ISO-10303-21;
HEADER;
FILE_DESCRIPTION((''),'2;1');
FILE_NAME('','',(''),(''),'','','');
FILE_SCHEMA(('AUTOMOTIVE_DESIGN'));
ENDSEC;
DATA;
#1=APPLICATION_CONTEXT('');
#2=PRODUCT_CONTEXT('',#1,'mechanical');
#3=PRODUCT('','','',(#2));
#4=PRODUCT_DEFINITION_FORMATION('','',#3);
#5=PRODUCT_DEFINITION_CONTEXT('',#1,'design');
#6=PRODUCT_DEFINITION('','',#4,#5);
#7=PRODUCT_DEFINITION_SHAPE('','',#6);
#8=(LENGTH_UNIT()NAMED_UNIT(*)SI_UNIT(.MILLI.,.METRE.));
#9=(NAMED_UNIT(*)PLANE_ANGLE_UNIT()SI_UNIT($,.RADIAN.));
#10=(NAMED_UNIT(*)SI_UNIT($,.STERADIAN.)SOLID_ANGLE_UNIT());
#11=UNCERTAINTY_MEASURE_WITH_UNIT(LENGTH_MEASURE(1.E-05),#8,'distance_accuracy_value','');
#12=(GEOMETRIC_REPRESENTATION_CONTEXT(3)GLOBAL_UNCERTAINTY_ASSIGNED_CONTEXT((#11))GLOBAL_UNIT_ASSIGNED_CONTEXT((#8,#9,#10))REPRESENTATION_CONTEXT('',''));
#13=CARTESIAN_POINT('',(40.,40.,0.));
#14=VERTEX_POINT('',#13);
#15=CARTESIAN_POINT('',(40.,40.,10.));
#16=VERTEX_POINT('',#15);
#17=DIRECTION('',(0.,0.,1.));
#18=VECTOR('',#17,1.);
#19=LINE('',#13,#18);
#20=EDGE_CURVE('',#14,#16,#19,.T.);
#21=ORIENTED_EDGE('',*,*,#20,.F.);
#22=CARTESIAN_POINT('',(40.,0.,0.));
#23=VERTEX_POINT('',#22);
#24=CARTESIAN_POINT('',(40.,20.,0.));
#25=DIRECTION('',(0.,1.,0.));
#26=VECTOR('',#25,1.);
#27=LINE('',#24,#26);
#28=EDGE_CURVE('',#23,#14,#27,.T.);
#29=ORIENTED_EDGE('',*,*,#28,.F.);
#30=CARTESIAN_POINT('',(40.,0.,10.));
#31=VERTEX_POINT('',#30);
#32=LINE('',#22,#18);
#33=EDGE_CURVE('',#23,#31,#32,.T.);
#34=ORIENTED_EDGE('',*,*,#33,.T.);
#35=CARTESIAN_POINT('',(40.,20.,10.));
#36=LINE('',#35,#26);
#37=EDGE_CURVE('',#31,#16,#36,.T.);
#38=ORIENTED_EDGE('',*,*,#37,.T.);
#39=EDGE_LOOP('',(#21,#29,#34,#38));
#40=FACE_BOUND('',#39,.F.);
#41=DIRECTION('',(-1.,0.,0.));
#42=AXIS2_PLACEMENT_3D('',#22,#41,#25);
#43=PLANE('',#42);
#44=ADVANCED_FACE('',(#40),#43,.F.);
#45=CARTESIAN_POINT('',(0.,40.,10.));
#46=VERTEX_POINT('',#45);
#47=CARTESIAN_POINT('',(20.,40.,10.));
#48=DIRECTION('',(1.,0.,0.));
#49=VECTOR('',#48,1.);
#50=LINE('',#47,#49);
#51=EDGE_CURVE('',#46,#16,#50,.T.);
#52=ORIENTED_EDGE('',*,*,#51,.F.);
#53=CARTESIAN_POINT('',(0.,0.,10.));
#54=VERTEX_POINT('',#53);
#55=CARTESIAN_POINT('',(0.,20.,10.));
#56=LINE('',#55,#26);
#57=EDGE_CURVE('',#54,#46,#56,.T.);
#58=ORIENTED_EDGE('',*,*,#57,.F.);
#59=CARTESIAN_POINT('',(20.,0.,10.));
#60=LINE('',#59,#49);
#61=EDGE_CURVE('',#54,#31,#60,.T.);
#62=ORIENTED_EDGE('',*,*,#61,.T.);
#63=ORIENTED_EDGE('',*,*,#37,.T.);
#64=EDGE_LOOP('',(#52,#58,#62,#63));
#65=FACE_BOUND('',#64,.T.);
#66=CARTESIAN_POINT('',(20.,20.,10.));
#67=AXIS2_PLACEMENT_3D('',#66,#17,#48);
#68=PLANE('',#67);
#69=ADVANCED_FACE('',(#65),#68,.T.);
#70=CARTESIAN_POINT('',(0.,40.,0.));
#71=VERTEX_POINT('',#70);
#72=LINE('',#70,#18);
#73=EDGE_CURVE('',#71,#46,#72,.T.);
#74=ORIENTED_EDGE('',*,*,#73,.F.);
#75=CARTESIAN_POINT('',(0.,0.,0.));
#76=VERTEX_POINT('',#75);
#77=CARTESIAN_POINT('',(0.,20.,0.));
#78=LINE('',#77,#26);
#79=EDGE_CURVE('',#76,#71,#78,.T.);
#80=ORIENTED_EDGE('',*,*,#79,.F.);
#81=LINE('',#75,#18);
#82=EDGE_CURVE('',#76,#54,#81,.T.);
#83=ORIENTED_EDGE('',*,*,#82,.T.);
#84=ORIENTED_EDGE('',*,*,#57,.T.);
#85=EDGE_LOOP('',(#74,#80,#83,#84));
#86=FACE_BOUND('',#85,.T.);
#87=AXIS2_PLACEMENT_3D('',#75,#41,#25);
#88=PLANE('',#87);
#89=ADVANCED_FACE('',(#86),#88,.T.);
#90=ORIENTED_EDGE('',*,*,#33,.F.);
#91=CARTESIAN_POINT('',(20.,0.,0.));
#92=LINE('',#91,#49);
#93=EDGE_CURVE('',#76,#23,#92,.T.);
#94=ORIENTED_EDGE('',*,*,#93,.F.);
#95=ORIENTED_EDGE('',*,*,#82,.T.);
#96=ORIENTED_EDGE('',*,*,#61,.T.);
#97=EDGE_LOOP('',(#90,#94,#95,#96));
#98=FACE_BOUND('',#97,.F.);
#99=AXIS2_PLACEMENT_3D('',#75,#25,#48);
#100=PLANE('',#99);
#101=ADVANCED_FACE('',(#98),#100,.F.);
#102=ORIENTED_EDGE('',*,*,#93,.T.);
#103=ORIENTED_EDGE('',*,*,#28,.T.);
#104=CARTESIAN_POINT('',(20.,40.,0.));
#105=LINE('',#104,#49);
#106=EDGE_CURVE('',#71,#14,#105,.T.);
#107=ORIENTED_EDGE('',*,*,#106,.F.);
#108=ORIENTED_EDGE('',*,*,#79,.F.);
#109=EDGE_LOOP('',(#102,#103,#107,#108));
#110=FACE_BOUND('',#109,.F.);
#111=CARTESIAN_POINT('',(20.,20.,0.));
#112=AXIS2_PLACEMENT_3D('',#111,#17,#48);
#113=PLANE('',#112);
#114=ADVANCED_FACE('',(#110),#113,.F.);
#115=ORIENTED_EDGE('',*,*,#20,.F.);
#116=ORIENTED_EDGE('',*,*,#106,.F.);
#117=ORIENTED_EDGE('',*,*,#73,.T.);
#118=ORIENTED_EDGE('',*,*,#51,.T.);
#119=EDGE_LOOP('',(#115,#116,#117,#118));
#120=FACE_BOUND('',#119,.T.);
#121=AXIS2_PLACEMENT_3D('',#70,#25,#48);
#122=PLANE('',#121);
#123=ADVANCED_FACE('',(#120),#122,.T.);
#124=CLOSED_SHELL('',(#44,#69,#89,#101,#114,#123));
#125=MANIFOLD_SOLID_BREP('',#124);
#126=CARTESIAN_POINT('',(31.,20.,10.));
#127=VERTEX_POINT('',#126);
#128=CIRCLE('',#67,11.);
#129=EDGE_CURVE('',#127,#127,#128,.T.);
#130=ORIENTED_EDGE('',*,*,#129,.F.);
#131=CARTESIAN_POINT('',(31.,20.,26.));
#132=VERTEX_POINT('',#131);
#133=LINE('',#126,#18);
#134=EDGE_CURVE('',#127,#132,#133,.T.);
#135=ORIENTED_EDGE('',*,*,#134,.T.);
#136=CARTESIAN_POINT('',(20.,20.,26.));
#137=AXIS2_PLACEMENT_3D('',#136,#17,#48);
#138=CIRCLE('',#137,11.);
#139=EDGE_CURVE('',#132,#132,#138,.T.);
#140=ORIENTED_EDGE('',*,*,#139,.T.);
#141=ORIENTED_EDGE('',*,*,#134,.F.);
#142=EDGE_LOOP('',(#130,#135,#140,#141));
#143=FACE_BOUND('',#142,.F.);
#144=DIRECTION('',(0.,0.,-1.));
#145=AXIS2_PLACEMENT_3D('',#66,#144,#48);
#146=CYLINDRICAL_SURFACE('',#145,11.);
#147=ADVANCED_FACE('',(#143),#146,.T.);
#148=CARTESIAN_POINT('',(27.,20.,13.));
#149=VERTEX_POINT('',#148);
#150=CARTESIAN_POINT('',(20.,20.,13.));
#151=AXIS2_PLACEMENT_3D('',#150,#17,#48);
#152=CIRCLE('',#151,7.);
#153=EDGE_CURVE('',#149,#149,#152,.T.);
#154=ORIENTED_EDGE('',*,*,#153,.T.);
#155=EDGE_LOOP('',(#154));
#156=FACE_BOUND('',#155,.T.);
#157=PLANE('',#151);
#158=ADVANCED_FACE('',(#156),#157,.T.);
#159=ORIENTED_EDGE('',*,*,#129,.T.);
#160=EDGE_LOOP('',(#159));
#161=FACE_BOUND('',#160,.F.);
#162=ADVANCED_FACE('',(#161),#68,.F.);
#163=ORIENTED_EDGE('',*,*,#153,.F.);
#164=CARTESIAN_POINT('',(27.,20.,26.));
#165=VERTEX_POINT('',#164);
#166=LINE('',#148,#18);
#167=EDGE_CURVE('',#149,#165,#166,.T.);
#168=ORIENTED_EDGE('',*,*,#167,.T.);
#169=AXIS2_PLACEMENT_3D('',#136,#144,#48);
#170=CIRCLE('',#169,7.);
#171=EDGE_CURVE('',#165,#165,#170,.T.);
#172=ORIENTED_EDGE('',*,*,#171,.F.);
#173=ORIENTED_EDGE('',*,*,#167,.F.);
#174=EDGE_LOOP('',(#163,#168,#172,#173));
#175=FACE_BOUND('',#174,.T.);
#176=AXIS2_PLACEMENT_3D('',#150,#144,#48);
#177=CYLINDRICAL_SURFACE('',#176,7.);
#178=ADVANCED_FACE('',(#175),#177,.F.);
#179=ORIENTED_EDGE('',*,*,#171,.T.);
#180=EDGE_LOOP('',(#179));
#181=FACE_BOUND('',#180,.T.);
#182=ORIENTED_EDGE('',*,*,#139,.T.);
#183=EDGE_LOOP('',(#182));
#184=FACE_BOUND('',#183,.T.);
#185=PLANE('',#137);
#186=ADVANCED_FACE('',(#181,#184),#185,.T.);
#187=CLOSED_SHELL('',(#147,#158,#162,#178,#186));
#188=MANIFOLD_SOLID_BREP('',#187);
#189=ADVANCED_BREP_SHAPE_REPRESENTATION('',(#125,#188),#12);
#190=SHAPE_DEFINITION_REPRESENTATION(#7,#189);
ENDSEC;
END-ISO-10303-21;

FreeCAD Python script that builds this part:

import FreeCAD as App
import Part
import Sketcher
Q = App.Units.Quantity


def add_polygon(sketch, points):
    """Adds a closed chain of lines whose ends are joined by coincident constraints."""
    first, n = sketch.GeometryCount, len(points)
    for a, b in zip(points, points[1:] + points[:1]):
        sketch.addGeometry(Part.LineSegment(App.Vector(*a, 0), App.Vector(*b, 0)), False)
    for i in range(n):
        sketch.addConstraint(Sketcher.Constraint("Coincident", first + i, 2, first + (i + 1) % n, 1))

doc = App.newDocument("Part")
body = doc.addObject("PartDesign::Body", "Body")

sketch1 = body.newObject("Sketcher::SketchObject", "Sketch")
sketch1.AttachmentSupport = (doc.getObject("XY_Plane"), [""])
sketch1.MapMode = "FlatFace"
add_polygon(sketch1, [(0, 40), (0, 0), (40, 0), (40, 40)])
sketch1.addConstraint([
    Sketcher.Constraint("Vertical", 0),
    Sketcher.Constraint("Horizontal", 1),
    Sketcher.Constraint("Vertical", 2),
    Sketcher.Constraint("Horizontal", 3),
    Sketcher.Constraint("Coincident", 0, 2, -1, 1),
    Sketcher.Constraint("Equal", 3, 0),
    Sketcher.Constraint("DistanceX", 1, 1, 1, 2, Q("40 mm")),
])
pad1 = body.newObject("PartDesign::Pad", "Pad")
pad1.Profile = sketch1
pad1.Length = 10
body2 = doc.addObject("PartDesign::Body", "Body001")

sketch2 = body2.newObject("Sketcher::SketchObject", "Sketch001")
sketch2.AttachmentSupport = (doc.getObject("XY_Plane001"), [""])
sketch2.MapMode = "FlatFace"
sketch2.AttachmentOffset = App.Placement(App.Vector(0, 0, 13), App.Rotation())
sketch2.addGeometry(Part.Circle(App.Vector(20, 20, 0), App.Vector(0, 0, 1), 7), False)
sketch2.addConstraint([
    Sketcher.Constraint("Diameter", 0, Q("14 mm")),
    Sketcher.Constraint("DistanceX", -1, 1, 0, 3, Q("20 mm")),
    Sketcher.Constraint("DistanceY", -1, 1, 0, 3, Q("20 mm")),
])
pad2 = body2.newObject("PartDesign::Pad", "Pad001")
pad2.Profile = sketch2
pad2.Length = 19
body3 = doc.addObject("PartDesign::Body", "Body002")

sketch3 = body3.newObject("Sketcher::SketchObject", "Sketch002")
sketch3.AttachmentSupport = (doc.getObject("XY_Plane002"), [""])
sketch3.MapMode = "FlatFace"
sketch3.AttachmentOffset = App.Placement(App.Vector(0, 0, 10), App.Rotation())
sketch3.addGeometry(Part.Circle(App.Vector(20, 20, 0), App.Vector(0, 0, 1), 11), False)
sketch3.addConstraint([
    Sketcher.Constraint("Diameter", 0, Q("22 mm")),
    Sketcher.Constraint("DistanceX", -1, 1, 0, 3, Q("20 mm")),
    Sketcher.Constraint("DistanceY", -1, 1, 0, 3, Q("20 mm")),
])
pad3 = body3.newObject("PartDesign::Pad", "Pad002")
pad3.Profile = sketch3
pad3.Length = 16
doc.recompute()

boolean = body3.newObject("PartDesign::Boolean", "Boolean")
boolean.Type = "Cut"
boolean.addObjects([body2])

doc.recompute()
